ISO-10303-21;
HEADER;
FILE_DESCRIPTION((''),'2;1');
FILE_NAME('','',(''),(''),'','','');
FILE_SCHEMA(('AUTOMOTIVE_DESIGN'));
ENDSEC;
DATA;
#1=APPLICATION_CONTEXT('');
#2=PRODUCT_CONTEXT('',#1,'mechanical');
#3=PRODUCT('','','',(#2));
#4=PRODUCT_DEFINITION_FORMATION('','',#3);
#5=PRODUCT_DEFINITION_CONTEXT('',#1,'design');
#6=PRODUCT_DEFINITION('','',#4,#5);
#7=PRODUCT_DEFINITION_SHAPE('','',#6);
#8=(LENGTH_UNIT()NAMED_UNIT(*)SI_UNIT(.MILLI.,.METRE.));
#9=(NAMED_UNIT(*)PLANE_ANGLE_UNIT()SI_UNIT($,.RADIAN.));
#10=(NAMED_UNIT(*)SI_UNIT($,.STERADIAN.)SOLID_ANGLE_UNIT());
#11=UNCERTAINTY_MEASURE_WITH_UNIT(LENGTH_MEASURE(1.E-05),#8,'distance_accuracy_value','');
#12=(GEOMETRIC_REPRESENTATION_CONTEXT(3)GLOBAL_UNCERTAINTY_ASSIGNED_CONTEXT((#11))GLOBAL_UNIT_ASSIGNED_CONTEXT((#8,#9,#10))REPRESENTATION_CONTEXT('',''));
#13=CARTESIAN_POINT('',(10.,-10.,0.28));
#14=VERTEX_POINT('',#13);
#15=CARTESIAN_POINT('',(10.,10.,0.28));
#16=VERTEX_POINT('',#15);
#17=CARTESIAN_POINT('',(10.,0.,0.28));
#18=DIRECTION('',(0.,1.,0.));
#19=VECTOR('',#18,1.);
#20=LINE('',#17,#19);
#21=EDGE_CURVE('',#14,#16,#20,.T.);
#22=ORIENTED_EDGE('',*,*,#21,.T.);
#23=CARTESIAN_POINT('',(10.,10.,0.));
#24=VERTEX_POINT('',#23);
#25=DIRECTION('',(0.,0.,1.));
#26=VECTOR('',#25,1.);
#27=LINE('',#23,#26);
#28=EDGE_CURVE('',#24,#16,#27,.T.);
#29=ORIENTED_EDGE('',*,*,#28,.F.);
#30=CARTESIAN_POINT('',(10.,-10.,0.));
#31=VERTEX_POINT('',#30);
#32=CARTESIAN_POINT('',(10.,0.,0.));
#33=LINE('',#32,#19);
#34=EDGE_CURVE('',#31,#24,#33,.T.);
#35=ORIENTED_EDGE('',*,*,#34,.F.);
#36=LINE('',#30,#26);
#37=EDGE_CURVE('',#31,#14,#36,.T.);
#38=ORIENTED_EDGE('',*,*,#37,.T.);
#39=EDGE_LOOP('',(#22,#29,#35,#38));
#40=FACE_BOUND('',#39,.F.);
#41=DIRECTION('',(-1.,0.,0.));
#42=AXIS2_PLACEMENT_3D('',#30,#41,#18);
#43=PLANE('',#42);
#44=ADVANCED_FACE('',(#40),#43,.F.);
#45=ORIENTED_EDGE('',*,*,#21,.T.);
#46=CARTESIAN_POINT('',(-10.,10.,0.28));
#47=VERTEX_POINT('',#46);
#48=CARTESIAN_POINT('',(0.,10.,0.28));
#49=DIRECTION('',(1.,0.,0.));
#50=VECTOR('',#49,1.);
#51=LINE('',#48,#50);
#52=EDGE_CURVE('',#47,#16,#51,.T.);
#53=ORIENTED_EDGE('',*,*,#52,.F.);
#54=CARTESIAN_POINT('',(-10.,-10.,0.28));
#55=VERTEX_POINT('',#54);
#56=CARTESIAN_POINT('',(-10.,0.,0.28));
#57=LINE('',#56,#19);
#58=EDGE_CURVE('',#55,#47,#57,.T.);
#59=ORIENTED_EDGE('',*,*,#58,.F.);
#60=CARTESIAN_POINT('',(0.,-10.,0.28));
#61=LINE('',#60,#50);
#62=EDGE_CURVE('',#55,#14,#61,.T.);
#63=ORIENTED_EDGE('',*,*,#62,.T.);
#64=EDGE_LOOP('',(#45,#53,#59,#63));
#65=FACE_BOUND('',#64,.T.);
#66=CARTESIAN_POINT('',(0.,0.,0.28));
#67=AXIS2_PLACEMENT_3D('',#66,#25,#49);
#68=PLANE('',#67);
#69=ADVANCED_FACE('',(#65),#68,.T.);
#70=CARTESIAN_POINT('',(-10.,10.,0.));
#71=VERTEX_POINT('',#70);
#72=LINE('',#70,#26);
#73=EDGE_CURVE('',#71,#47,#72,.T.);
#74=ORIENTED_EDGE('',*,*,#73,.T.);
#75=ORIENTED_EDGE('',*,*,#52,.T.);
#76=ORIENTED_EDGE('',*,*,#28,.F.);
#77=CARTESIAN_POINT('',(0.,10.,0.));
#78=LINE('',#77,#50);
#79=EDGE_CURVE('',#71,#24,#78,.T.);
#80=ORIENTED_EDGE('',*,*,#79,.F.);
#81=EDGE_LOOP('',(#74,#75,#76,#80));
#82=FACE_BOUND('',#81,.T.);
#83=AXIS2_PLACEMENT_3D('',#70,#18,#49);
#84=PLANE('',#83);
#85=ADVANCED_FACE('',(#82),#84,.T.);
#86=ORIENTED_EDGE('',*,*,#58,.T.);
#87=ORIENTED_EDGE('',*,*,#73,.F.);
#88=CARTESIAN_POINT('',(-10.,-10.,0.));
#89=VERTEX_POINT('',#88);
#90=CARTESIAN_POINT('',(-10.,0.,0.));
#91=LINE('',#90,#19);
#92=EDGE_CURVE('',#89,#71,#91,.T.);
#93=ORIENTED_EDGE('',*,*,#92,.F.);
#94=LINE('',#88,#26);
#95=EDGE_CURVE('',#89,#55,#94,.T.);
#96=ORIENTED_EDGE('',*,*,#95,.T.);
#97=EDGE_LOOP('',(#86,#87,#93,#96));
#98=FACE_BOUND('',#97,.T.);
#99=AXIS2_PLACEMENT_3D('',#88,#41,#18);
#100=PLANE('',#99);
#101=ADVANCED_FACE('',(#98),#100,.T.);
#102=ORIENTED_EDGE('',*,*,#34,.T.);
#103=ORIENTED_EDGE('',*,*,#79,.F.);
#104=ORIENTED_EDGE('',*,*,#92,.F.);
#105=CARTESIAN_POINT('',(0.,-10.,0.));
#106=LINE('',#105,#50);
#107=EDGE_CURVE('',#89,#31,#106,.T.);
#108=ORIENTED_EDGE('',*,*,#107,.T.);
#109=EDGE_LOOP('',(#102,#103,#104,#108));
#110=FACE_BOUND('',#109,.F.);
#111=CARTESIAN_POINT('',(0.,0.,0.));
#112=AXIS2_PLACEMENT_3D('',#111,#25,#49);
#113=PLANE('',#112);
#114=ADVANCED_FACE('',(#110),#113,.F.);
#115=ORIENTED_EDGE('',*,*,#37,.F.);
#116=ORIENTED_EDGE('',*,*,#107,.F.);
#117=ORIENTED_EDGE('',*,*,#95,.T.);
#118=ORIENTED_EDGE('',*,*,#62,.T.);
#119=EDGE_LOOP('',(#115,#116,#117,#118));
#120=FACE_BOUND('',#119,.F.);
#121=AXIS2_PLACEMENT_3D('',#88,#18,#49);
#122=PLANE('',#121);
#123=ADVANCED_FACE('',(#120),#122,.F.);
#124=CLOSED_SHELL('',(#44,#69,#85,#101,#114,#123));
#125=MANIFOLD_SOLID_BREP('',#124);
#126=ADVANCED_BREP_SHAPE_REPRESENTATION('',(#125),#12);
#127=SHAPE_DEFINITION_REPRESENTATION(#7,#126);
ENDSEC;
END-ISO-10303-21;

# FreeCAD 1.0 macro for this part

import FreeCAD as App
import Part
import Sketcher

V = App.Vector
Q = App.Units.Quantity

doc = App.newDocument("Part")
body = doc.addObject("PartDesign::Body", "Body")

# Sketch on XY plane
sketch1 = doc.addObject("Sketcher::SketchObject", "Sketch")
body.addObject(sketch1)
sketch1.AttachmentSupport = (doc.XY_Plane, [""])
sketch1.MapMode = "FlatFace"
sketch1.addGeometry([
    Part.LineSegment(V(-10, 10, 0), V(-10, -10, 0)),
    Part.LineSegment(V(-10, -10, 0), V(10, -10, 0)),
    Part.LineSegment(V(10, -10, 0), V(10, 10, 0)),
    Part.LineSegment(V(10, 10, 0), V(-10, 10, 0)),
], False)
sketch1.addConstraint([
    Sketcher.Constraint("Coincident", 0, 2, 1, 1),
    Sketcher.Constraint("Coincident", 1, 2, 2, 1),
    Sketcher.Constraint("Coincident", 2, 2, 3, 1),
    Sketcher.Constraint("Coincident", 3, 2, 0, 1),
    Sketcher.Constraint("Vertical", 0),
    Sketcher.Constraint("Horizontal", 1),
    Sketcher.Constraint("Vertical", 2),
    Sketcher.Constraint("Horizontal", 3),
    Sketcher.Constraint("Symmetric", 0, 2, 2, 2, -1, 1),
    Sketcher.Constraint("Equal", 3, 0),
    Sketcher.Constraint("DistanceX", 1, 1, 1, 2, Q("20 mm")),
])
pad1 = doc.addObject("PartDesign::Pad", "Pad")
body.addObject(pad1)
pad1.Profile = sketch1
pad1.Length = 0.28

doc.recompute()
